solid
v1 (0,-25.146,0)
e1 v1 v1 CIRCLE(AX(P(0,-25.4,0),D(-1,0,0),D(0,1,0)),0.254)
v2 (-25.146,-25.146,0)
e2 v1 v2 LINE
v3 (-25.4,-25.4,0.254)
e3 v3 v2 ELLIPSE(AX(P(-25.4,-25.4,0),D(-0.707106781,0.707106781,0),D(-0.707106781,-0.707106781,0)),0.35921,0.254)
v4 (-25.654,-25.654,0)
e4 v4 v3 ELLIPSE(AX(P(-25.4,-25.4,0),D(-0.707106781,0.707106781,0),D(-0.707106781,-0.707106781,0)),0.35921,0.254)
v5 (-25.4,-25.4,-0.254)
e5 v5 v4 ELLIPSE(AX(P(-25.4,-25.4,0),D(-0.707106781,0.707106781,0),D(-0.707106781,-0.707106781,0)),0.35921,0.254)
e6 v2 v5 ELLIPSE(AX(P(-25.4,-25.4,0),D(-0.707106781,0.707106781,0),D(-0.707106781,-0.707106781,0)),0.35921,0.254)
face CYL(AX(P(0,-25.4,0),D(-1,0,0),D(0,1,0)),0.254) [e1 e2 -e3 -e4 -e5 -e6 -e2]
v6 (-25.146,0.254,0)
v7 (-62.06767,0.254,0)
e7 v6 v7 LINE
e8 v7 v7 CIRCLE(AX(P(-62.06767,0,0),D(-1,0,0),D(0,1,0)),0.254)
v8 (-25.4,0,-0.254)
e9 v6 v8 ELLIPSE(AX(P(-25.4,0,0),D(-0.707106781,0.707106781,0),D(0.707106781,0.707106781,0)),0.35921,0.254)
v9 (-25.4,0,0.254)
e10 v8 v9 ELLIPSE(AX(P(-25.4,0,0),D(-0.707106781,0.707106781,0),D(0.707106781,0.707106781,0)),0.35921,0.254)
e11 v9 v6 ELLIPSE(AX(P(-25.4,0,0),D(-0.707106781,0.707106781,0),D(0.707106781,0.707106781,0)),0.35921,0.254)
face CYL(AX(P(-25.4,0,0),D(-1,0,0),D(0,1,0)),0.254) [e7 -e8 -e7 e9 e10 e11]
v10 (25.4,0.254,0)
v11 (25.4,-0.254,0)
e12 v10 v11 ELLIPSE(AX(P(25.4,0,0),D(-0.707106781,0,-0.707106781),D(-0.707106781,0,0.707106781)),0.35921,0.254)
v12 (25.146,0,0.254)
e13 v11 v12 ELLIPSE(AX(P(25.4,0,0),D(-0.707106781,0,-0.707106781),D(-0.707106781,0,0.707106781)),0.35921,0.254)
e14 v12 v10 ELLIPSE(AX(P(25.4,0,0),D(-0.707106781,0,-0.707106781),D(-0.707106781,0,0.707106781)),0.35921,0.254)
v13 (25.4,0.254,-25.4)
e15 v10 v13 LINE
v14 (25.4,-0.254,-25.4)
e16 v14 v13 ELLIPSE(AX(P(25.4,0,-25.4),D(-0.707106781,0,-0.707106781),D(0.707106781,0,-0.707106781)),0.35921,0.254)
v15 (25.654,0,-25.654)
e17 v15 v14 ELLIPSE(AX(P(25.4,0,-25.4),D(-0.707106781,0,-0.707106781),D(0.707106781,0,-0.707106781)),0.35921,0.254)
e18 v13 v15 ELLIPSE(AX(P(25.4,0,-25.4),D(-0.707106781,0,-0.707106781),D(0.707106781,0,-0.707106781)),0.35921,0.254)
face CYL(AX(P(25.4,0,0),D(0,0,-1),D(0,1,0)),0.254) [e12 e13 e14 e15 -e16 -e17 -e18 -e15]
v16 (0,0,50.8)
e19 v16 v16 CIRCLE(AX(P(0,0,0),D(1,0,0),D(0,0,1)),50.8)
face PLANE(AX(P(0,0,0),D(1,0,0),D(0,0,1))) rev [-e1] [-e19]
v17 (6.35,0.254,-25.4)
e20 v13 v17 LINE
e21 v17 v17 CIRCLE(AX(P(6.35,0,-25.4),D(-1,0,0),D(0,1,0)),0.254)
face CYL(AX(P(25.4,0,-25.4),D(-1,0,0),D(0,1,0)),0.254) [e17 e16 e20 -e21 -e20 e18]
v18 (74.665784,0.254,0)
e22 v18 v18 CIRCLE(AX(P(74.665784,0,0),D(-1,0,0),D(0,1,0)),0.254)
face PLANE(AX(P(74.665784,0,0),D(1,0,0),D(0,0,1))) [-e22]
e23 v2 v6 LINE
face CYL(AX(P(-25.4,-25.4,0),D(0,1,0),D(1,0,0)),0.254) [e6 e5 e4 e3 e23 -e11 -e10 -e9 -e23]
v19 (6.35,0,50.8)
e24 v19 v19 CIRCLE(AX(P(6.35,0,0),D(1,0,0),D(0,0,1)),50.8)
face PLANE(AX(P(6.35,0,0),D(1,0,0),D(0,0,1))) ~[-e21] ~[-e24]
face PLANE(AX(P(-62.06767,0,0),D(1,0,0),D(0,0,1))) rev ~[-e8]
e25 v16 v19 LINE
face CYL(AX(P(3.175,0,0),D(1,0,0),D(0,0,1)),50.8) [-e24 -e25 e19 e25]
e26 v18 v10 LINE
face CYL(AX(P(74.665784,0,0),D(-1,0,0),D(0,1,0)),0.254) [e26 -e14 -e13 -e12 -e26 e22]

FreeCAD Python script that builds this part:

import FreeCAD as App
import Part
import Sketcher
from FreeCAD import Vector
Q = App.Units.Quantity


def add_polygon(sketch, points):
    """Adds a closed chain of lines whose ends are joined by coincident constraints."""
    first, n = sketch.GeometryCount, len(points)
    for a, b in zip(points, points[1:] + points[:1]):
        sketch.addGeometry(Part.LineSegment(App.Vector(*a, 0), App.Vector(*b, 0)), False)
    for i in range(n):
        sketch.addConstraint(Sketcher.Constraint("Coincident", first + i, 2, first + (i + 1) % n, 1))

doc = App.newDocument("Part")
body = doc.addObject("PartDesign::Body", "Body")

sketch1 = body.newObject("Sketcher::SketchObject", "Sketch")
sketch1.AttachmentSupport = (doc.getObject("XZ_Plane"), [""])
sketch1.MapMode = "FlatFace"
add_polygon(sketch1, [(0, 51), (0, 0), (6, 0), (6, 51)])
sketch1.addConstraint([
    Sketcher.Constraint("Vertical", 0),
    Sketcher.Constraint("Horizontal", 1),
    Sketcher.Constraint("Vertical", 2),
    Sketcher.Constraint("Horizontal", 3),
    Sketcher.Constraint("Coincident", 0, 2, -1, 1),
    Sketcher.Constraint("DistanceY", 0, 2, 0, 1, Q("2 in")),
    Sketcher.Constraint("DistanceX", 1, 1, 1, 2, Q("0.25 in")),
])
revolution = body.newObject("PartDesign::Revolution", "Revolution")
revolution.Profile = sketch1
revolution.ReferenceAxis = (sketch1, ["H_Axis"])
revolution.Angle = 360

sketch2 = body.newObject("Sketcher::SketchObject", "Sketch001")
sketch2.AttachmentSupport = (doc.getObject("YZ_Plane"), [""])
sketch2.MapMode = "FlatFace"
sketch2.AttachmentOffset = App.Placement(Vector(0, 0, -1.3 * 25.4), App.Rotation())
sketch2.addGeometry(Part.Circle(Vector(0, 0, 0), Vector(0, 0, 1), 0.25), False)
sketch2.addConstraint([
    Sketcher.Constraint("Coincident", 0, 3, -1, 1),
    Sketcher.Constraint("Diameter", 0, Q("0.02 in")),
])

sketch3 = body.newObject("Sketcher::SketchObject", "Sketch002")
sketch3.AttachmentSupport = (doc.getObject("XY_Plane"), [""])
sketch3.MapMode = "FlatFace"
sketch3.addGeometry([
    Part.LineSegment(Vector(0, -25, 0), Vector(-25, -25, 0)),
    Part.LineSegment(Vector(-25, -25, 0), Vector(-25, 0, 0)),
    Part.LineSegment(Vector(-25, 0, 0), Vector(-62, 0, 0)),
], False)
sketch3.addConstraint([
    Sketcher.Constraint("Coincident", 0, 2, 1, 1),
    Sketcher.Constraint("Coincident", 1, 2, 2, 1),
    Sketcher.Constraint("Horizontal", 0),
    Sketcher.Constraint("Vertical", 1),
    Sketcher.Constraint("Horizontal", 2),
    Sketcher.Constraint("PointOnObject", 0, 1, -2),
    Sketcher.Constraint("PointOnObject", 1, 2, -1),
    Sketcher.Constraint("Equal", 0, 1),
    Sketcher.Constraint("DistanceX", 0, 2, 0, 1, Q("1 in")),
    Sketcher.Constraint("DistanceX", 2, 2, 2, 1, Q("36.66767 mm")),
])
doc.recompute()

additivepipe = body.newObject("PartDesign::AdditivePipe", "AdditivePipe")
additivepipe.Profile = sketch2
additivepipe.Spine = (sketch3, ["Edge1", "Edge2", "Edge3"])
additivepipe.Transition = "Right corner"

sketch4 = body.newObject("Sketcher::SketchObject", "Sketch003")
sketch4.AttachmentSupport = (doc.getObject("YZ_Plane"), [""])
sketch4.MapMode = "FlatFace"
sketch4.AttachmentOffset = App.Placement(Vector(0, 0, 1.3 * 25.4), App.Rotation())
sketch4.addGeometry(Part.Circle(Vector(0, 0, 0), Vector(0, 0, 1), 0.25), False)
sketch4.addConstraint([
    Sketcher.Constraint("Coincident", 0, 3, -1, 1),
    Sketcher.Constraint("Diameter", 0, Q("0.02 in")),
])

sketch5 = body.newObject("Sketcher::SketchObject", "Sketch004")
sketch5.AttachmentSupport = (doc.getObject("XZ_Plane"), [""])
sketch5.MapMode = "FlatFace"
sketch5.addGeometry([
    Part.LineSegment(Vector(75, 0, 0), Vector(25, 0, 0)),
    Part.LineSegment(Vector(25, 0, 0), Vector(25, -25, 0)),
    Part.LineSegment(Vector(25, -25, 0), Vector(0, -25, 0)),
], False)
sketch5.addConstraint([
    Sketcher.Constraint("Coincident", 0, 2, 1, 1),
    Sketcher.Constraint("Coincident", 1, 2, 2, 1),
    Sketcher.Constraint("Horizontal", 0),
    Sketcher.Constraint("Vertical", 1),
    Sketcher.Constraint("Horizontal", 2),
    Sketcher.Constraint("PointOnObject", 0, 1, -1),
    Sketcher.Constraint("PointOnObject", 2, 2, -2),
    Sketcher.Constraint("Equal", 2, 1),
    Sketcher.Constraint("DistanceX", 2, 2, 2, 1, Q("1 in")),
    Sketcher.Constraint("DistanceX", 0, 2, 0, 1, Q("49.265784 mm")),
])
doc.recompute()

additivepipe2 = body.newObject("PartDesign::AdditivePipe", "AdditivePipe001")
additivepipe2.Profile = sketch4
additivepipe2.Spine = (sketch5, ["Edge1", "Edge2", "Edge3"])
additivepipe2.Transition = "Right corner"

doc.recompute()
